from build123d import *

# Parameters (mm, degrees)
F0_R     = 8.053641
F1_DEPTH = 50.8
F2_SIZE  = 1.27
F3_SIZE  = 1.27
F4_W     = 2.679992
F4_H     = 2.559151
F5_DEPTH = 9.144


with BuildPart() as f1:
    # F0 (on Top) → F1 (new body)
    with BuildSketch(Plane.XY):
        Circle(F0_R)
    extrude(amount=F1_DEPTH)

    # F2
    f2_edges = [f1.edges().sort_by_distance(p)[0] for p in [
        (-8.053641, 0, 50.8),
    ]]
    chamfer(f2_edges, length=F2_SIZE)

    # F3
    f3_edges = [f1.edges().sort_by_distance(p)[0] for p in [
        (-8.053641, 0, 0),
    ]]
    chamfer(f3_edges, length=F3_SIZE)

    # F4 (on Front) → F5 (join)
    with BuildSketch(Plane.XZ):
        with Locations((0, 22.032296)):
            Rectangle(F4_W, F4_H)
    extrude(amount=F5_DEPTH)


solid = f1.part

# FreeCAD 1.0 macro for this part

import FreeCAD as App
import Part
import Sketcher


def edges_at(feature, points):
    """Names of the edges that pass closest to the given points."""
    edges = feature.Shape.Edges
    near = lambda p: min(range(len(edges)), key=lambda i: edges[i].distToShape(Part.Vertex(*p))[0])
    return sorted({f"Edge{near(p) + 1}" for p in points})


def add_polygon(sketch, points):
    """Adds a closed chain of lines whose ends are joined by coincident constraints."""
    first, n = sketch.GeometryCount, len(points)
    for a, b in zip(points, points[1:] + points[:1]):
        sketch.addGeometry(Part.LineSegment(App.Vector(*a, 0), App.Vector(*b, 0)), False)
    for i in range(n):
        sketch.addConstraint(Sketcher.Constraint("Coincident", first + i, 2, first + (i + 1) % n, 1))

doc = App.newDocument("Part")
params = doc.addObject("Spreadsheet::Sheet", "Params")
for row, (alias, value) in enumerate([
    ("pad1_length", "2 in"),
    ("chamfer_size", "0.05 in"),
    ("chamfer2_size", "0.05 in"),
    ("pad2_length", "0.36 in"),
], start=1):
    params.set(f"A{row}", alias)
    params.set(f"B{row}", "=" + value)
    params.setAlias(f"B{row}", alias)

body = doc.addObject("PartDesign::Body", "Body")

# Sketch on XY plane
sketch1 = body.newObject("Sketcher::SketchObject", "Sketch")
sketch1.AttachmentSupport = (doc.getObject("XY_Plane"), [""])
sketch1.MapMode = "FlatFace"
sketch1.addGeometry(Part.Circle(App.Vector(0, 0, 0), App.Vector(0, 0, 1), 8.053641), False)
sketch1.addConstraint([
    Sketcher.Constraint("Coincident", 0, 3, -1, 1),
    Sketcher.Constraint("Diameter", 0, 16.107282),
])
pad1 = body.newObject("PartDesign::Pad", "Pad")
pad1.Profile = sketch1
pad1.setExpression("Length", "Params.pad1_length")
doc.recompute()

chamfer = body.newObject("PartDesign::Chamfer", "Chamfer")
chamfer.Base = (pad1, edges_at(pad1, [(-8.054, 0, 50.8)]))
chamfer.setExpression("Size", "Params.chamfer_size")
doc.recompute()

chamfer2 = body.newObject("PartDesign::Chamfer", "Chamfer001")
chamfer2.Base = (chamfer, edges_at(chamfer, [(-8.054, 0, 0)]))
chamfer2.setExpression("Size", "Params.chamfer2_size")

# Sketch on XZ plane
sketch2 = body.newObject("Sketcher::SketchObject", "Sketch001")
sketch2.AttachmentSupport = (doc.getObject("XZ_Plane"), [""])
sketch2.MapMode = "FlatFace"
add_polygon(sketch2, [(-1.339996, 23.311871), (-1.339996, 20.75272), (1.339996, 20.75272), (1.339996, 23.311871)])  # lines 0-3
sketch2.addConstraint([
    Sketcher.Constraint("Vertical", 0),
    Sketcher.Constraint("Horizontal", 1),
    Sketcher.Constraint("Vertical", 2),
    Sketcher.Constraint("Horizontal", 3),
    Sketcher.Constraint("DistanceX", 1, 1, 1, 2, 2.679992),
    Sketcher.Constraint("DistanceY", 0, 2, 0, 1, 2.559151),
    Sketcher.Constraint("DistanceY", -1, 1, 0, 2, 20.75272),
    Sketcher.Constraint("DistanceX", 0, 2, -1, 1, 1.339996),
])
pad2 = body.newObject("PartDesign::Pad", "Pad001")
pad2.Profile = sketch2
pad2.setExpression("Length", "Params.pad2_length")

doc.recompute()
